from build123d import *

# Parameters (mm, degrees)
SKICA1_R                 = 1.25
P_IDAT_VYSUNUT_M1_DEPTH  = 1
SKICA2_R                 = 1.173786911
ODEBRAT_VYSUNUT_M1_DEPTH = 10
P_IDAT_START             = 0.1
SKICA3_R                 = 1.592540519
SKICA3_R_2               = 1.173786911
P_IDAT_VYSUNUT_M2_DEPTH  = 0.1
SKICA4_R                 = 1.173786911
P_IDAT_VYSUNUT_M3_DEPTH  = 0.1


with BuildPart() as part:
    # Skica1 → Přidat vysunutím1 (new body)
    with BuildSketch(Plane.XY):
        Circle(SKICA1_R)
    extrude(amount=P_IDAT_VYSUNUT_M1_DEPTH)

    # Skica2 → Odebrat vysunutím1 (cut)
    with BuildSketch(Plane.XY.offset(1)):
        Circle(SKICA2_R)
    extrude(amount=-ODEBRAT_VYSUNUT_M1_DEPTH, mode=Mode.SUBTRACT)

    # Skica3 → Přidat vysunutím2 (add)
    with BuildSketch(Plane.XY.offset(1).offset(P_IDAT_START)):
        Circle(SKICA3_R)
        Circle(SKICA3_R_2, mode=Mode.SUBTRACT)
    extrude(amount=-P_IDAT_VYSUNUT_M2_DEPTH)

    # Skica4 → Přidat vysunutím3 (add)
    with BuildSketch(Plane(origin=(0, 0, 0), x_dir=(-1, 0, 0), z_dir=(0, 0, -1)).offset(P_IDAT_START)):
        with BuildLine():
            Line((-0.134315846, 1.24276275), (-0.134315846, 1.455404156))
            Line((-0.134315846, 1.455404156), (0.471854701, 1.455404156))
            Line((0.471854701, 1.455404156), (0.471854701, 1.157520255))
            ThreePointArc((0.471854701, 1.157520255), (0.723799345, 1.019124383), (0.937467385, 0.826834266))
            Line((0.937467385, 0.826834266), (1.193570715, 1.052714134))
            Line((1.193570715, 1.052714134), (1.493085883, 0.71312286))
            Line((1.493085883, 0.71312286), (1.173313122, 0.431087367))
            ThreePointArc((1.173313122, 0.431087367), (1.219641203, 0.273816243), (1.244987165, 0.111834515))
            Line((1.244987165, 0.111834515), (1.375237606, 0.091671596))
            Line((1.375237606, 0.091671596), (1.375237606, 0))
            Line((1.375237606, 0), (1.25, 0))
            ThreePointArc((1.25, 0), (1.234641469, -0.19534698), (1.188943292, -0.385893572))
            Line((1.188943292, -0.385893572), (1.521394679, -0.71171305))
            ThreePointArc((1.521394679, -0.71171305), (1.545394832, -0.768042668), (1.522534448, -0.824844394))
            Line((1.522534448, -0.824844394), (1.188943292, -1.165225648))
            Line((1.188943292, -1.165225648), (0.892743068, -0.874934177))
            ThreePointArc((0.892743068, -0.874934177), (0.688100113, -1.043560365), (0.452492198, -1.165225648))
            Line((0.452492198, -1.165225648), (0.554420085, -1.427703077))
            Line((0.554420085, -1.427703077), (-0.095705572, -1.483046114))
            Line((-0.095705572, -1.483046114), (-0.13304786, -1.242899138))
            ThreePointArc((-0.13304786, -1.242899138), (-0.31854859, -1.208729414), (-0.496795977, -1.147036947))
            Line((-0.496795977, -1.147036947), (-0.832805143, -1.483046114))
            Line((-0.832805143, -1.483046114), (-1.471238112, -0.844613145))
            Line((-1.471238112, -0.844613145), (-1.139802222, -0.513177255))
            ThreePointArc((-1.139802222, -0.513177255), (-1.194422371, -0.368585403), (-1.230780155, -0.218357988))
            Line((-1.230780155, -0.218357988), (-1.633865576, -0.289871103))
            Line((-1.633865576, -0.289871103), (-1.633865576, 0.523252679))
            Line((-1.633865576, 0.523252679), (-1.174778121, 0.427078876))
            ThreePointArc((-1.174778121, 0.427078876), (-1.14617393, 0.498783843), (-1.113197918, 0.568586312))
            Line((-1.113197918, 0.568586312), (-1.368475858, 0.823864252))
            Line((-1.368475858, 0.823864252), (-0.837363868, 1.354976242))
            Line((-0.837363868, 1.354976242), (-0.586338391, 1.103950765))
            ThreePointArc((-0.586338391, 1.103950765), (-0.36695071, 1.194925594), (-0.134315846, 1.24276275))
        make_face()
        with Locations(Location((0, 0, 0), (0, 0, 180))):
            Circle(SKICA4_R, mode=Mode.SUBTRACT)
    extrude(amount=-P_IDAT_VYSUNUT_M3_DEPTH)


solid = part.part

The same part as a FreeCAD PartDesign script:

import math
import FreeCAD as App
import Part
import Sketcher

V = App.Vector
Q = App.Units.Quantity

doc = App.newDocument("Part")
body = doc.addObject("PartDesign::Body", "Body")

# Sketch on XY plane
sketch1 = doc.addObject("Sketcher::SketchObject", "Sketch")
body.addObject(sketch1)
sketch1.AttachmentSupport = (doc.XY_Plane, [""])
sketch1.MapMode = "FlatFace"
sketch1.addGeometry(Part.Circle(V(0, 0, 0), V(0, 0, 1), 1.2), False)
sketch1.addConstraint(Sketcher.Constraint("Coincident", 0, 3, -1, 1))
sketch1.addConstraint(Sketcher.Constraint("Diameter", 0, 2.5))
pad1 = doc.addObject("PartDesign::Pad", "Pad")
body.addObject(pad1)
pad1.Profile = sketch1
pad1.Length = 1

# Sketch on XY plane
sketch2 = doc.addObject("Sketcher::SketchObject", "Sketch001")
body.addObject(sketch2)
sketch2.AttachmentSupport = (doc.XY_Plane, [""])
sketch2.MapMode = "FlatFace"
sketch2.AttachmentOffset = App.Placement(V(0, 0, 1), App.Rotation())
sketch2.addGeometry(Part.Circle(V(0, 0, 0), V(0, 0, 1), 1.2), False)
sketch2.addConstraint(Sketcher.Constraint("Coincident", 0, 3, -1, 1))
sketch2.addConstraint(Sketcher.Constraint("Diameter", 0, 2.347574))
pocket1 = doc.addObject("PartDesign::Pocket", "Pocket")
body.addObject(pocket1)
pocket1.Profile = sketch2
pocket1.Length = 10

# Sketch on XY plane
sketch3 = doc.addObject("Sketcher::SketchObject", "Sketch002")
body.addObject(sketch3)
sketch3.AttachmentSupport = (doc.XY_Plane, [""])
sketch3.MapMode = "FlatFace"
sketch3.AttachmentOffset = App.Placement(V(0, 0, 1.1), App.Rotation())
sketch3.addGeometry(Part.Circle(V(0, 0, 0), V(0, 0, 1), 1.6), False)
sketch3.addGeometry(Part.Circle(V(0, 0, 0), V(0, 0, 1), 1.2), False)
sketch3.addConstraint(Sketcher.Constraint("Coincident", 0, 3, -1, 1))
sketch3.addConstraint(Sketcher.Constraint("Coincident", 1, 3, -1, 1))
sketch3.addConstraint(Sketcher.Constraint("Diameter", 0, 3.185081))
sketch3.addConstraint(Sketcher.Constraint("Diameter", 1, 2.347574))
pad2 = doc.addObject("PartDesign::Pad", "Pad001")
body.addObject(pad2)
pad2.Profile = sketch3
pad2.Length = 0.1
pad2.Reversed = True

# Sketch on XY plane
sketch4 = doc.addObject("Sketcher::SketchObject", "Sketch003")
body.addObject(sketch4)
sketch4.AttachmentSupport = (doc.XY_Plane, [""])
sketch4.MapMode = "FlatFace"
sketch4.AttachmentOffset = App.Placement(V(0, 0, -0.1), App.Rotation())
sketch4.addGeometry(Part.LineSegment(V(0.13, 1.46, 0), V(0.13, 1.24, 0)), False)
sketch4.addGeometry(Part.ArcOfCircle(Part.Circle(V(0, 0, 0), V(0, 0, 1), 1.25), math.radians(62), math.radians(84)), False)
sketch4.addGeometry(Part.LineSegment(V(0.59, 1.1, 0), V(0.84, 1.35, 0)), False)
sketch4.addGeometry(Part.LineSegment(V(0.84, 1.35, 0), V(1.37, 0.82, 0)), False)
sketch4.addGeometry(Part.LineSegment(V(1.37, 0.82, 0), V(1.11, 0.57, 0)), False)
sketch4.addGeometry(Part.ArcOfCircle(Part.Circle(V(0, 0, 0), V(0, 0, 1), 1.25), math.radians(19.98), math.radians(27.06)), False)
sketch4.addGeometry(Part.LineSegment(V(1.17, 0.43, 0), V(1.63, 0.52, 0)), False)
sketch4.addGeometry(Part.LineSegment(V(1.63, 0.52, 0), V(1.63, -0.29, 0)), False)
sketch4.addGeometry(Part.LineSegment(V(1.63, -0.29, 0), V(1.23, -0.22, 0)), False)
sketch4.addGeometry(Part.ArcOfCircle(Part.Circle(V(0, 0, 0), V(0, 0, 1), 1.25), math.radians(-24.24), math.radians(-10.06)), False)
sketch4.addGeometry(Part.LineSegment(V(1.14, -0.51, 0), V(1.47, -0.84, 0)), False)
sketch4.addGeometry(Part.LineSegment(V(1.47, -0.84, 0), V(0.83, -1.48, 0)), False)
sketch4.addGeometry(Part.LineSegment(V(0.83, -1.48, 0), V(0.5, -1.15, 0)), False)
sketch4.addGeometry(Part.ArcOfCircle(Part.Circle(V(0, 0, 0), V(0, 0, 1), 1.25), math.radians(-83.89), math.radians(-66.58)), False)
sketch4.addGeometry(Part.LineSegment(V(0.13, -1.24, 0), V(0.1, -1.48, 0)), False)
sketch4.addGeometry(Part.LineSegment(V(0.1, -1.48, 0), V(-0.55, -1.43, 0)), False)
sketch4.addGeometry(Part.LineSegment(V(-0.55, -1.43, 0), V(-0.45, -1.17, 0)), False)
sketch4.addGeometry(Part.ArcOfCircle(Part.Circle(V(0, 0, 0), V(0, 0, 1), 1.25), math.radians(-136), math.radians(-111)), False)
sketch4.addGeometry(Part.LineSegment(V(-0.89, -0.87, 0), V(-1.19, -1.17, 0)), False)
sketch4.addGeometry(Part.LineSegment(V(-1.19, -1.17, 0), V(-1.52, -0.82, 0)), False)
sketch4.addGeometry(Part.ArcOfCircle(Part.Circle(V(-1.47, -0.77, 0), V(0, 0, 1), 0.08), math.radians(134), math.radians(224)), False)
sketch4.addGeometry(Part.LineSegment(V(-1.52, -0.71, 0), V(-1.19, -0.39, 0)), False)
sketch4.addGeometry(Part.ArcOfCircle(Part.Circle(V(0, 0, 0), V(0, 0, 1), 1.25), math.radians(-180), math.radians(-162.02)), False)
sketch4.addGeometry(Part.LineSegment(V(-1.25, 0, 0), V(-1.38, 0, 0)), False)
sketch4.addGeometry(Part.LineSegment(V(-1.38, 0, 0), V(-1.38, 0.09, 0)), False)
sketch4.addGeometry(Part.LineSegment(V(-1.38, 0.09, 0), V(-1.24, 0.11, 0)), False)
sketch4.addGeometry(Part.ArcOfCircle(Part.Circle(V(0, 0, 0), V(0, 0, 1), 1.25), math.radians(159.83), math.radians(174.87)), False)
sketch4.addGeometry(Part.LineSegment(V(-1.17, 0.43, 0), V(-1.49, 0.71, 0)), False)
sketch4.addGeometry(Part.LineSegment(V(-1.49, 0.71, 0), V(-1.19, 1.05, 0)), False)
sketch4.addGeometry(Part.LineSegment(V(-1.19, 1.05, 0), V(-0.94, 0.83, 0)), False)
sketch4.addGeometry(Part.ArcOfCircle(Part.Circle(V(0, 0, 0), V(0, 0, 1), 1.25), math.radians(112), math.radians(139)), False)
sketch4.addGeometry(Part.LineSegment(V(-0.47, 1.16, 0), V(-0.47, 1.46, 0)), False)
sketch4.addGeometry(Part.LineSegment(V(-0.47, 1.46, 0), V(0.13, 1.46, 0)), False)
sketch4.addGeometry(Part.Circle(V(0, 0, 0), V(0, 0, 1), 1.17), False)
sketch4.addConstraint(Sketcher.Constraint("Coincident", 0, 2, 1, 2))
sketch4.addConstraint(Sketcher.Constraint("Coincident", 1, 1, 2, 1))
sketch4.addConstraint(Sketcher.Constraint("Coincident", 2, 2, 3, 1))
sketch4.addConstraint(Sketcher.Constraint("Coincident", 3, 2, 4, 1))
sketch4.addConstraint(Sketcher.Constraint("Coincident", 4, 2, 5, 2))
sketch4.addConstraint(Sketcher.Constraint("Coincident", 5, 1, 6, 1))
sketch4.addConstraint(Sketcher.Constraint("Coincident", 6, 2, 7, 1))
sketch4.addConstraint(Sketcher.Constraint("Coincident", 7, 2, 8, 1))
sketch4.addConstraint(Sketcher.Constraint("Coincident", 8, 2, 9, 2))
sketch4.addConstraint(Sketcher.Constraint("Coincident", 9, 1, 10, 1))
sketch4.addConstraint(Sketcher.Constraint("Coincident", 10, 2, 11, 1))
sketch4.addConstraint(Sketcher.Constraint("Coincident", 11, 2, 12, 1))
sketch4.addConstraint(Sketcher.Constraint("Coincident", 12, 2, 13, 2))
sketch4.addConstraint(Sketcher.Constraint("Coincident", 13, 1, 14, 1))
sketch4.addConstraint(Sketcher.Constraint("Coincident", 14, 2, 15, 1))
sketch4.addConstraint(Sketcher.Constraint("Coincident", 15, 2, 16, 1))
sketch4.addConstraint(Sketcher.Constraint("Coincident", 16, 2, 17, 2))
sketch4.addConstraint(Sketcher.Constraint("Coincident", 17, 1, 18, 1))
sketch4.addConstraint(Sketcher.Constraint("Coincident", 18, 2, 19, 1))
sketch4.addConstraint(Sketcher.Constraint("Tangent", 19, 2, 20, 2))
sketch4.addConstraint(Sketcher.Constraint("Tangent", 20, 1, 21, 1))
sketch4.addConstraint(Sketcher.Constraint("Coincident", 21, 2, 22, 2))
sketch4.addConstraint(Sketcher.Constraint("Coincident", 22, 1, 23, 1))
sketch4.addConstraint(Sketcher.Constraint("Coincident", 23, 2, 24, 1))
sketch4.addConstraint(Sketcher.Constraint("Coincident", 24, 2, 25, 1))
sketch4.addConstraint(Sketcher.Constraint("Coincident", 25, 2, 26, 2))
sketch4.addConstraint(Sketcher.Constraint("Coincident", 26, 1, 27, 1))
sketch4.addConstraint(Sketcher.Constraint("Coincident", 27, 2, 28, 1))
sketch4.addConstraint(Sketcher.Constraint("Coincident", 28, 2, 29, 1))
sketch4.addConstraint(Sketcher.Constraint("Coincident", 29, 2, 30, 2))
sketch4.addConstraint(Sketcher.Constraint("Coincident", 30, 1, 31, 1))
sketch4.addConstraint(Sketcher.Constraint("Coincident", 31, 2, 32, 1))
sketch4.addConstraint(Sketcher.Constraint("Coincident", 32, 2, 0, 1))
sketch4.addConstraint(Sketcher.Constraint("Vertical", 0))
sketch4.addConstraint(Sketcher.Constraint("Vertical", 7))
sketch4.addConstraint(Sketcher.Constraint("Horizontal", 23))
sketch4.addConstraint(Sketcher.Constraint("Vertical", 24))
sketch4.addConstraint(Sketcher.Constraint("Vertical", 31))
sketch4.addConstraint(Sketcher.Constraint("Horizontal", 32))
sketch4.addConstraint(Sketcher.Constraint("Coincident", 1, 3, -1, 1))
sketch4.addConstraint(Sketcher.Constraint("Coincident", 5, 3, -1, 1))
sketch4.addConstraint(Sketcher.Constraint("Coincident", 9, 3, -1, 1))
sketch4.addConstraint(Sketcher.Constraint("Coincident", 13, 3, -1, 1))
sketch4.addConstraint(Sketcher.Constraint("Coincident", 17, 3, -1, 1))
sketch4.addConstraint(Sketcher.Constraint("Coincident", 22, 3, -1, 1))
sketch4.addConstraint(Sketcher.Constraint("Coincident", 26, 3, -1, 1))
sketch4.addConstraint(Sketcher.Constraint("Coincident", 30, 3, -1, 1))
sketch4.addConstraint(Sketcher.Constraint("Coincident", 33, 3, -1, 1))
sketch4.addConstraint(Sketcher.Constraint("Equal", 1, 5))
sketch4.addConstraint(Sketcher.Constraint("Equal", 5, 9))
sketch4.addConstraint(Sketcher.Constraint("Equal", 9, 13))
sketch4.addConstraint(Sketcher.Constraint("Equal", 13, 17))
sketch4.addConstraint(Sketcher.Constraint("Equal", 17, 22))
sketch4.addConstraint(Sketcher.Constraint("Equal", 22, 26))
sketch4.addConstraint(Sketcher.Constraint("Equal", 26, 30))
sketch4.addConstraint(Sketcher.Constraint("PointOnObject", 22, 1, -1))
sketch4.addConstraint(Sketcher.Constraint("Perpendicular", 2, 3))
sketch4.addConstraint(Sketcher.Constraint("Perpendicular", 3, 4))
sketch4.addConstraint(Sketcher.Constraint("Perpendicular", 4, 10))
sketch4.addConstraint(Sketcher.Constraint("Perpendicular", 10, 11))
sketch4.addConstraint(Sketcher.Constraint("Perpendicular", 11, 12))
sketch4.addConstraint(Sketcher.Constraint("Perpendicular", 18, 19))
sketch4.addConstraint(Sketcher.Constraint("Perpendicular", 19, 21))
sketch4.addConstraint(Sketcher.Constraint("Perpendicular", 27, 28))
sketch4.addConstraint(Sketcher.Constraint("Perpendicular", 28, 29))
sketch4.addConstraint(Sketcher.Constraint("Horizontal", 11, 2, 14, 2))
sketch4.addConstraint(Sketcher.Constraint("Horizontal", 16, 2, 18, 2))
sketch4.addConstraint(Sketcher.Constraint("Vertical", 18, 2, 21, 2))
sketch4.addConstraint(Sketcher.Constraint("Angle", 2, Q("45 deg")))
sketch4.addConstraint(Sketcher.Constraint("Radius", 1, 1.25))
sketch4.addConstraint(Sketcher.Constraint("Radius", 20, 0.08))
sketch4.addConstraint(Sketcher.Constraint("Diameter", 33, 2.347574))
sketch4.addConstraint(Sketcher.Constraint("DistanceY", 25, 2, 29, 2, 0.715))
sketch4.addConstraint(Sketcher.Constraint("Distance", 25, 0.131802))
sketch4.addConstraint(Sketcher.Constraint("DistanceX", 32, 1, 32, 2, 0.606171))
sketch4.addConstraint(Sketcher.Constraint("DistanceY", 0, 2, 0, 1, 0.212641))
sketch4.addConstraint(Sketcher.Constraint("DistanceY", 24, 1, 24, 2, 0.091672))
sketch4.addConstraint(Sketcher.Constraint("DistanceX", 20, 3, -1, 1, 1.465399))
sketch4.addConstraint(Sketcher.Constraint("DistanceY", 13, 1, -1, 1, 1.242899))
sketch4.addConstraint(Sketcher.Constraint("DistanceY", 3, 2, 0, 2, 0.418898))
sketch4.addConstraint(Sketcher.Constraint("DistanceX", 2, 2, 6, 2, 0.796502))
sketch4.addConstraint(Sketcher.Constraint("DistanceY", 6, 2, 1, 1, 0.580698))
sketch4.addConstraint(Sketcher.Constraint("DistanceX", 14, 2, 11, 2, 0.7371))
sketch4.addConstraint(Sketcher.Constraint("DistanceX", 18, 2, 17, 1, 0.2962))
sketch4.addConstraint(Sketcher.Constraint("DistanceX", 27, 2, 25, 2, 0.248099))
sketch4.addConstraint(Sketcher.Constraint("Distance", 8, 0.40938))
sketch4.addConstraint(Sketcher.Constraint("Distance", 10, 0.468721))
sketch4.addConstraint(Sketcher.Constraint("Distance", 11, 0.902881))
sketch4.addConstraint(Sketcher.Constraint("Distance", 12, 0.475189))
sketch4.addConstraint(Sketcher.Constraint("Distance", 21, 0.465491))
sketch4.addConstraint(Sketcher.Constraint("Distance", 27, 0.426379))
sketch4.addConstraint(Sketcher.Constraint("DistanceX", 23, 2, 23, 1, 0.125238))
sketch4.addConstraint(Sketcher.Constraint("DistanceY", 7, 2, 7, 1, 0.813124))
sketch4.addConstraint(Sketcher.Constraint("DistanceY", 31, 1, 31, 2, 0.297884))
sketch4.addConstraint(Sketcher.Constraint("DistanceX", -1, 1, 1, 1, 0.586338))
sketch4.addConstraint(Sketcher.Constraint("DistanceX", -1, 1, 5, 1, 1.174778))
sketch4.addConstraint(Sketcher.Constraint("DistanceX", -1, 1, 8, 2, 1.23078))
sketch4.addConstraint(Sketcher.Constraint("DistanceX", 15, 2, -1, 1, 0.55442))
sketch4.addConstraint(Sketcher.Constraint("DistanceX", 28, 2, -1, 1, 1.193571))
sketch4.addConstraint(Sketcher.Constraint("DistanceY", 15, 2, 17, 1, 0.552769))
pad3 = doc.addObject("PartDesign::Pad", "Pad002")
body.addObject(pad3)
pad3.Profile = sketch4
pad3.Length = 0.1

doc.recompute()
